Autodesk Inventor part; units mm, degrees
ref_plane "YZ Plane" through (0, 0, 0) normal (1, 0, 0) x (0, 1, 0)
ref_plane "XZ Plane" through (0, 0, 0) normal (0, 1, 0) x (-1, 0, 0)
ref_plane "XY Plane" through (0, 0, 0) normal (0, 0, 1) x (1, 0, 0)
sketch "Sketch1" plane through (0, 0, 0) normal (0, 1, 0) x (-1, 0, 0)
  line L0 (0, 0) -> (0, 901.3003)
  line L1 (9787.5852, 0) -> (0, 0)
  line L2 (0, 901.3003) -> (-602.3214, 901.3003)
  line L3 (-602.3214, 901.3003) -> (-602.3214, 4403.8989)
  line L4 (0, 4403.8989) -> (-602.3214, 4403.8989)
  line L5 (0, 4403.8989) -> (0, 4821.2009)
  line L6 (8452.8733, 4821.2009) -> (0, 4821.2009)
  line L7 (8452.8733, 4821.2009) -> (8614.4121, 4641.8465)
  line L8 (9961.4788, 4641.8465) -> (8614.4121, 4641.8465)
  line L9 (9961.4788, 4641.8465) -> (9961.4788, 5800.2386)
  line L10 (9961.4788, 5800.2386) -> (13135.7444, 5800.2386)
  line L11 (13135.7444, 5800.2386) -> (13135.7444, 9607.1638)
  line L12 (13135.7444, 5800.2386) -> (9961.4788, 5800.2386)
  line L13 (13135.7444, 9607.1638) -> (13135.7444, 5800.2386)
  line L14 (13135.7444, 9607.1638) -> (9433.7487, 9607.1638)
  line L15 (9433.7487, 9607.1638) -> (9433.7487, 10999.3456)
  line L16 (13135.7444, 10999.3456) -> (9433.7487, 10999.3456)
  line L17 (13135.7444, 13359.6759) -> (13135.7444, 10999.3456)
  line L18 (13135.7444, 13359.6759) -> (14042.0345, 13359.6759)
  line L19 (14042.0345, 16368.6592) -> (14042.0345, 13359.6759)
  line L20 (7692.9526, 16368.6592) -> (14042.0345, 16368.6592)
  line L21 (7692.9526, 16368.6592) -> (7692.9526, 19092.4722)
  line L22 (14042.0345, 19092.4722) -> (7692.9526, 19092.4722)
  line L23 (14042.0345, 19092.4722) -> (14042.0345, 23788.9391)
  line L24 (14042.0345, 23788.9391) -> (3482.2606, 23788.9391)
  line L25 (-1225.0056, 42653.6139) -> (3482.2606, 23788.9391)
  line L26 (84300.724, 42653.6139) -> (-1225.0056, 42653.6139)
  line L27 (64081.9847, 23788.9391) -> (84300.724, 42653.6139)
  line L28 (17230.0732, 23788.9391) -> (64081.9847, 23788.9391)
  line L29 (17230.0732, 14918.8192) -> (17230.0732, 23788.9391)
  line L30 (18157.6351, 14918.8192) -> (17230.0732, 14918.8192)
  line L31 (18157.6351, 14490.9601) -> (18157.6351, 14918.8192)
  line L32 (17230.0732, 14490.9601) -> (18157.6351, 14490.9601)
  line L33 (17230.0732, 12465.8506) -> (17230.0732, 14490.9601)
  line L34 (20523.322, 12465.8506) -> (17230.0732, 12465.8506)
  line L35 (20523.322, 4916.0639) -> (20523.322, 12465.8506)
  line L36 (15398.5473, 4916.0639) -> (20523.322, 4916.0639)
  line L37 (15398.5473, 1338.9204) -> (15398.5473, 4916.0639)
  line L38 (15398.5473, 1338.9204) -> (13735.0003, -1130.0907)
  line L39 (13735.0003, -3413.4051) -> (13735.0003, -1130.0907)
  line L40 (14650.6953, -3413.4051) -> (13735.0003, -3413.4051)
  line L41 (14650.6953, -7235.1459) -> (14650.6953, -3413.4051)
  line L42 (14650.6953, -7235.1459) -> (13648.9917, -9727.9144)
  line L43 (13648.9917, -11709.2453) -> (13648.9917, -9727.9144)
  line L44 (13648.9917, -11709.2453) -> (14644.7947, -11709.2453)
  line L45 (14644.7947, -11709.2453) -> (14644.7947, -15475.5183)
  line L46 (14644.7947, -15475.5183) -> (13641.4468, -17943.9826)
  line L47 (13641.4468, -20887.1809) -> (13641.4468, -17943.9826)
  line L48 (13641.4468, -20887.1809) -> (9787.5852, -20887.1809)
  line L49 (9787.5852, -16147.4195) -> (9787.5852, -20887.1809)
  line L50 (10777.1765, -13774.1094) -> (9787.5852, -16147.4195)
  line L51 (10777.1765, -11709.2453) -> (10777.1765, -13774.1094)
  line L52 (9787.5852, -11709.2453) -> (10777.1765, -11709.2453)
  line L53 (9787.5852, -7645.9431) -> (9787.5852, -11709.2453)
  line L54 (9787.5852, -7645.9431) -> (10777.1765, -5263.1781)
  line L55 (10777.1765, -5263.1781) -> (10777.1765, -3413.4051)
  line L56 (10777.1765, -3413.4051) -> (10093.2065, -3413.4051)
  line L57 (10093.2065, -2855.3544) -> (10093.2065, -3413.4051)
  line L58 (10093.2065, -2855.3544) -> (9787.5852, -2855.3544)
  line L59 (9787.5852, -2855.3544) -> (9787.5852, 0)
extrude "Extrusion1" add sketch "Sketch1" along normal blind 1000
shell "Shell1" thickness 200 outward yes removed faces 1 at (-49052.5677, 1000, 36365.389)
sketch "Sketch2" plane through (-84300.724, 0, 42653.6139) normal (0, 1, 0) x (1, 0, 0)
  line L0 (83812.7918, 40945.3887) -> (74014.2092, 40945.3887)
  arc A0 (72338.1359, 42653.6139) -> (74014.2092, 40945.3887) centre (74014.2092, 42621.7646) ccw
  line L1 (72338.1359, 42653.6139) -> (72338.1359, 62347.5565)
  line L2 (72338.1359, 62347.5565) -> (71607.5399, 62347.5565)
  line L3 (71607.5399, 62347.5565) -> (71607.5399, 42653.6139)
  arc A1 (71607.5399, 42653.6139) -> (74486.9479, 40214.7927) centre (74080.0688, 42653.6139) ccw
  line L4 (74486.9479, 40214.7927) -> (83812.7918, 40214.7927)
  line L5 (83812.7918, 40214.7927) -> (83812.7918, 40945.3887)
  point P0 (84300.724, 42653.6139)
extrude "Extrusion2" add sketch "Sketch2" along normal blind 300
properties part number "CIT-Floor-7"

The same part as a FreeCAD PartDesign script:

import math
import FreeCAD as App
import Part
import Sketcher

V = App.Vector
Q = App.Units.Quantity


def faces_at(feature, points):
    """Names of the faces that lie closest to the given points."""
    faces = feature.Shape.Faces
    near = lambda p: min(range(len(faces)), key=lambda i: faces[i].distToShape(Part.Vertex(*p))[0])
    return sorted({f"Face{near(p) + 1}" for p in points})


def add_polygon(sketch, points):
    """Adds a closed chain of lines whose ends are joined by coincident constraints."""
    first, n = sketch.GeometryCount, len(points)
    for a, b in zip(points, points[1:] + points[:1]):
        sketch.addGeometry(Part.LineSegment(App.Vector(*a, 0), App.Vector(*b, 0)), False)
    for i in range(n):
        sketch.addConstraint(Sketcher.Constraint("Coincident", first + i, 2, first + (i + 1) % n, 1))

doc = App.newDocument("Part")
body = doc.addObject("PartDesign::Body", "Body")

sketch1 = body.newObject("Sketcher::SketchObject", "Sketch")
sketch1.AttachmentSupport = (doc.getObject("XZ_Plane"), [""])
sketch1.MapMode = "FlatFace"
add_polygon(sketch1, [(0, 901.3003), (0, 0), (-9787.5852, 0), (-9787.5852, -2855.3544), (-10093.2065, -2855.3544), (-10093.2065, -3413.4051), (-10777.1765, -3413.4051), (-10777.1765, -5263.1781), (-9787.5852, -7645.9431), (-9787.5852, -11709.2453), (-10777.1765, -11709.2453), (-10777.1765, -13774.1094), (-9787.5852, -16147.4195), (-9787.5852, -20887.1809), (-13641.4468, -20887.1809), (-13641.4468, -17943.9826), (-14644.7947, -15475.5183), (-14644.7947, -11709.2453), (-13648.9917, -11709.2453), (-13648.9917, -9727.9144), (-14650.6953, -7235.1459), (-14650.6953, -3413.4051), (-13735.0003, -3413.4051), (-13735.0003, -1130.0907), (-15398.5473, 1338.9204), (-15398.5473, 4916.0639), (-20523.322, 4916.0639), (-20523.322, 12465.8506), (-17230.0732, 12465.8506), (-17230.0732, 14490.9601), (-18157.6351, 14490.9601), (-18157.6351, 14918.8192), (-17230.0732, 14918.8192), (-17230.0732, 23788.9391), (-64081.9847, 23788.9391), (-84300.724, 42653.6139), (1225.0056, 42653.6139), (-3482.2606, 23788.9391), (-14042.0345, 23788.9391), (-14042.0345, 19092.4722), (-7692.9526, 19092.4722), (-7692.9526, 16368.6592), (-14042.0345, 16368.6592), (-14042.0345, 13359.6759), (-13135.7444, 13359.6759), (-13135.7444, 10999.3456), (-9433.7487, 10999.3456), (-9433.7487, 9607.1638), (-13135.7444, 9607.1638), (-13135.7444, 5800.2386), (-9961.4788, 5800.2386), (-9961.4788, 4641.8465), (-8614.4121, 4641.8465), (-8452.8733, 4821.2009), (0, 4821.2009), (0, 4403.8989), (602.3214, 4403.8989), (602.3214, 901.3003)])
sketch1.addConstraint(Sketcher.Constraint("Vertical", 0))
sketch1.addConstraint(Sketcher.Constraint("Horizontal", 1))
sketch1.addConstraint(Sketcher.Constraint("Vertical", 2))
sketch1.addConstraint(Sketcher.Constraint("Horizontal", 3))
sketch1.addConstraint(Sketcher.Constraint("Vertical", 4))
sketch1.addConstraint(Sketcher.Constraint("Horizontal", 5))
sketch1.addConstraint(Sketcher.Constraint("Vertical", 6))
sketch1.addConstraint(Sketcher.Constraint("Vertical", 8))
sketch1.addConstraint(Sketcher.Constraint("Horizontal", 9))
sketch1.addConstraint(Sketcher.Constraint("Vertical", 10))
sketch1.addConstraint(Sketcher.Constraint("Vertical", 12))
sketch1.addConstraint(Sketcher.Constraint("Horizontal", 13))
sketch1.addConstraint(Sketcher.Constraint("Vertical", 14))
sketch1.addConstraint(Sketcher.Constraint("Vertical", 16))
sketch1.addConstraint(Sketcher.Constraint("Horizontal", 17))
sketch1.addConstraint(Sketcher.Constraint("Vertical", 18))
sketch1.addConstraint(Sketcher.Constraint("Vertical", 20))
sketch1.addConstraint(Sketcher.Constraint("Horizontal", 21))
sketch1.addConstraint(Sketcher.Constraint("Vertical", 22))
sketch1.addConstraint(Sketcher.Constraint("Vertical", 24))
sketch1.addConstraint(Sketcher.Constraint("Horizontal", 25))
sketch1.addConstraint(Sketcher.Constraint("Vertical", 26))
sketch1.addConstraint(Sketcher.Constraint("Horizontal", 27))
sketch1.addConstraint(Sketcher.Constraint("Vertical", 28))
sketch1.addConstraint(Sketcher.Constraint("Horizontal", 29))
sketch1.addConstraint(Sketcher.Constraint("Vertical", 30))
sketch1.addConstraint(Sketcher.Constraint("Horizontal", 31))
sketch1.addConstraint(Sketcher.Constraint("Vertical", 32))
sketch1.addConstraint(Sketcher.Constraint("Horizontal", 33))
sketch1.addConstraint(Sketcher.Constraint("Horizontal", 35))
sketch1.addConstraint(Sketcher.Constraint("Horizontal", 37))
sketch1.addConstraint(Sketcher.Constraint("Vertical", 38))
sketch1.addConstraint(Sketcher.Constraint("Horizontal", 39))
sketch1.addConstraint(Sketcher.Constraint("Vertical", 40))
sketch1.addConstraint(Sketcher.Constraint("Horizontal", 41))
sketch1.addConstraint(Sketcher.Constraint("Vertical", 42))
sketch1.addConstraint(Sketcher.Constraint("Horizontal", 43))
sketch1.addConstraint(Sketcher.Constraint("Vertical", 44))
sketch1.addConstraint(Sketcher.Constraint("Horizontal", 45))
sketch1.addConstraint(Sketcher.Constraint("Vertical", 46))
sketch1.addConstraint(Sketcher.Constraint("Horizontal", 47))
sketch1.addConstraint(Sketcher.Constraint("Vertical", 48))
sketch1.addConstraint(Sketcher.Constraint("Horizontal", 49))
sketch1.addConstraint(Sketcher.Constraint("Vertical", 50))
sketch1.addConstraint(Sketcher.Constraint("Horizontal", 51))
sketch1.addConstraint(Sketcher.Constraint("Horizontal", 53))
sketch1.addConstraint(Sketcher.Constraint("Vertical", 54))
sketch1.addConstraint(Sketcher.Constraint("Horizontal", 55))
sketch1.addConstraint(Sketcher.Constraint("Vertical", 56))
sketch1.addConstraint(Sketcher.Constraint("Horizontal", 57))
sketch1.addConstraint(Sketcher.Constraint("Coincident", 0, 2, -1, 1))
sketch1.addConstraint(Sketcher.Constraint("PointOnObject", 53, 2, -2))
sketch1.addConstraint(Sketcher.Constraint("DistanceX", 5, 2, 5, 1, Q("683.97 mm")))
sketch1.addConstraint(Sketcher.Constraint("DistanceX", 43, 1, 43, 2, Q("906.29 mm")))
sketch1.addConstraint(Sketcher.Constraint("DistanceY", 32, 1, 32, 2, Q("8870.12 mm")))
sketch1.addConstraint(Sketcher.Constraint("Distance", 11, Q("2571.36 mm")))
sketch1.addConstraint(Sketcher.Constraint("DistanceX", 17, 1, 17, 2, Q("995.803 mm")))
sketch1.addConstraint(Sketcher.Constraint("DistanceX", 21, 1, 21, 2, Q("915.695 mm")))
sketch1.addConstraint(Sketcher.Constraint("DistanceX", 29, 2, 29, 1, Q("927.562 mm")))
sketch1.addConstraint(Sketcher.Constraint("DistanceX", 31, 1, 31, 2, Q("927.562 mm")))
sketch1.addConstraint(Sketcher.Constraint("DistanceX", 37, 2, 37, 1, Q("10559.774 mm")))
sketch1.addConstraint(Sketcher.Constraint("DistanceX", 39, 1, 39, 2, Q("6349.082 mm")))
sketch1.addConstraint(Sketcher.Constraint("DistanceX", 41, 2, 41, 1, Q("6349.082 mm")))
sketch1.addConstraint(Sketcher.Constraint("DistanceY", 6, 2, 6, 1, Q("1849.773 mm")))
sketch1.addConstraint(Sketcher.Constraint("DistanceY", 10, 2, 10, 1, Q("2064.864 mm")))
sketch1.addConstraint(Sketcher.Constraint("DistanceY", 16, 1, 16, 2, Q("3766.273 mm")))
sketch1.addConstraint(Sketcher.Constraint("DistanceY", 18, 1, 18, 2, Q("1981.331 mm")))
sketch1.addConstraint(Sketcher.Constraint("DistanceY", 30, 1, 30, 2, Q("427.859 mm")))
sketch1.addConstraint(Sketcher.Constraint("DistanceY", 38, 2, 38, 1, Q("4696.467 mm")))
sketch1.addConstraint(Sketcher.Constraint("DistanceY", 40, 2, 40, 1, Q("2723.813 mm")))
sketch1.addConstraint(Sketcher.Constraint("DistanceY", 50, 2, 50, 1, Q("1158.392 mm")))
sketch1.addConstraint(Sketcher.Constraint("DistanceY", 54, 2, 54, 1, Q("417.302 mm")))
sketch1.addConstraint(Sketcher.Constraint("DistanceY", -1, 1, 28, 2, Q("14490.96 mm")))
sketch1.addConstraint(Sketcher.Constraint("DistanceX", 9, 2, 4, 2, Q("683.97 mm")))
sketch1.addConstraint(Sketcher.Constraint("DistanceY", 11, 2, 10, 2, Q("2373.31 mm")))
sketch1.addConstraint(Sketcher.Constraint("DistanceX", 19, 2, 7, 2, Q("4863.11 mm")))
sketch1.addConstraint(Sketcher.Constraint("DistanceY", 31, 2, 36, 2, Q("8870.12 mm")))
sketch1.addConstraint(Sketcher.Constraint("DistanceX", 42, 2, 47, 2, Q("906.29 mm")))
sketch1.addConstraint(Sketcher.Constraint("DistanceX", 49, 2, 46, 2, Q("527.73 mm")))
sketch1.addConstraint(Sketcher.Constraint("Distance", 23, Q("2977.147 mm")))
sketch1.addConstraint(Sketcher.Constraint("DistanceX", 1, 2, 1, 1, Q("9787.5852 mm")))
sketch1.addConstraint(Sketcher.Constraint("DistanceX", 3, 2, 3, 1, Q("305.6213 mm")))
sketch1.addConstraint(Sketcher.Constraint("DistanceX", 9, 2, 9, 1, Q("989.5913 mm")))
sketch1.addConstraint(Sketcher.Constraint("DistanceX", 13, 2, 13, 1, Q("3853.8616 mm")))
sketch1.addConstraint(Sketcher.Constraint("DistanceX", 25, 2, 25, 1, Q("5124.7747 mm")))
sketch1.addConstraint(Sketcher.Constraint("DistanceX", 27, 1, 27, 2, Q("3293.2488 mm")))
sketch1.addConstraint(Sketcher.Constraint("DistanceX", 33, 2, 33, 1, Q("46851.9115 mm")))
sketch1.addConstraint(Sketcher.Constraint("DistanceX", 35, 1, 35, 2, Q("85525.7296 mm")))
sketch1.addConstraint(Sketcher.Constraint("DistanceX", 45, 1, 45, 2, Q("3701.9957 mm")))
sketch1.addConstraint(Sketcher.Constraint("DistanceX", 51, 1, 51, 2, Q("1347.0667 mm")))
sketch1.addConstraint(Sketcher.Constraint("DistanceX", 53, 1, 53, 2, Q("8452.8733 mm")))
sketch1.addConstraint(Sketcher.Constraint("DistanceX", 55, 1, 55, 2, Q("602.3214 mm")))
sketch1.addConstraint(Sketcher.Constraint("DistanceY", 0, 2, 0, 1, Q("901.3003 mm")))
sketch1.addConstraint(Sketcher.Constraint("DistanceY", 2, 2, 2, 1, Q("2855.3544 mm")))
sketch1.addConstraint(Sketcher.Constraint("DistanceY", 4, 2, 4, 1, Q("558.0507 mm")))
sketch1.addConstraint(Sketcher.Constraint("DistanceY", 8, 2, 8, 1, Q("4063.3022 mm")))
sketch1.addConstraint(Sketcher.Constraint("DistanceY", 12, 2, 12, 1, Q("4739.7614 mm")))
sketch1.addConstraint(Sketcher.Constraint("DistanceY", 14, 1, 14, 2, Q("2943.1983 mm")))
sketch1.addConstraint(Sketcher.Constraint("DistanceY", 20, 1, 20, 2, Q("3821.7408 mm")))
sketch1.addConstraint(Sketcher.Constraint("DistanceY", 22, 1, 22, 2, Q("2283.3144 mm")))
sketch1.addConstraint(Sketcher.Constraint("DistanceY", 24, 1, 24, 2, Q("3577.1435 mm")))
sketch1.addConstraint(Sketcher.Constraint("DistanceY", 26, 1, 26, 2, Q("7549.7867 mm")))
sketch1.addConstraint(Sketcher.Constraint("DistanceY", 28, 1, 28, 2, Q("2025.1095 mm")))
sketch1.addConstraint(Sketcher.Constraint("DistanceY", 42, 2, 42, 1, Q("3008.9833 mm")))
sketch1.addConstraint(Sketcher.Constraint("DistanceY", 44, 2, 44, 1, Q("2360.3303 mm")))
sketch1.addConstraint(Sketcher.Constraint("DistanceY", 46, 2, 46, 1, Q("1392.1818 mm")))
sketch1.addConstraint(Sketcher.Constraint("DistanceY", 48, 2, 48, 1, Q("3806.9252 mm")))
sketch1.addConstraint(Sketcher.Constraint("DistanceY", 56, 2, 56, 1, Q("3502.5986 mm")))
sketch1.addConstraint(Sketcher.Constraint("DistanceY", 7, 2, -1, 1, Q("7645.943 mm")))
sketch1.addConstraint(Sketcher.Constraint("DistanceY", 19, 2, -1, 1, Q("7235.146 mm")))
sketch1.addConstraint(Sketcher.Constraint("DistanceX", 34, 2, -1, 1, Q("84300.724 mm")))
sketch1.addConstraint(Sketcher.Constraint("DistanceY", -1, 1, 34, 2, Q("42653.614 mm")))
sketch1.addConstraint(Sketcher.Constraint("DistanceX", 51, 2, -1, 1, Q("8614.412 mm")))
sketch1.addConstraint(Sketcher.Constraint("DistanceX", 15, 2, 14, 2, Q("1003.348 mm")))
sketch1.addConstraint(Sketcher.Constraint("DistanceY", 15, 2, 10, 2, Q("1701.409 mm")))
pad1 = body.newObject("PartDesign::Pad", "Pad")
pad1.Profile = sketch1
pad1.Length = 1000
pad1.Reversed = True
doc.recompute()

thickness = body.newObject("PartDesign::Thickness", "Thickness")
thickness.Base = (pad1, faces_at(pad1, [(-49052.568, 1000, 36365.389)]))
thickness.Value = 200
thickness.Reversed = False
thickness.Join = "Intersection"

sketch2 = body.newObject("Sketcher::SketchObject", "Sketch001")
sketch2.AttachmentSupport = (doc.getObject("XZ_Plane"), [""])
sketch2.MapMode = "FlatFace"
sketch2.addGeometry(Part.LineSegment(V(-488, 2439, 0), V(-488, 1708, 0)), False)
sketch2.addGeometry(Part.LineSegment(V(-488, 1708, 0), V(-10287, 1708, 0)), False)
sketch2.addGeometry(Part.ArcOfCircle(Part.Circle(V(-10287, 32, 0), V(0, 0, 1), 1676), math.radians(90), math.radians(181)), False)
sketch2.addGeometry(Part.LineSegment(V(-11963, 0, 0), V(-11963, -19694, 0)), False)
sketch2.addGeometry(Part.LineSegment(V(-11963, -19694, 0), V(-12693, -19694, 0)), False)
sketch2.addGeometry(Part.LineSegment(V(-12693, -19694, 0), V(-12693, 0, 0)), False)
sketch2.addGeometry(Part.ArcOfCircle(Part.Circle(V(-10221, 0, 0), V(0, 0, 1), 2473), math.radians(81), math.radians(180)), False)
sketch2.addGeometry(Part.LineSegment(V(-9814, 2439, 0), V(-488, 2439, 0)), False)
sketch2.addConstraint(Sketcher.Constraint("Coincident", 0, 2, 1, 1))
sketch2.addConstraint(Sketcher.Constraint("Coincident", 1, 2, 2, 1))
sketch2.addConstraint(Sketcher.Constraint("Coincident", 2, 2, 3, 1))
sketch2.addConstraint(Sketcher.Constraint("Coincident", 3, 2, 4, 1))
sketch2.addConstraint(Sketcher.Constraint("Coincident", 4, 2, 5, 1))
sketch2.addConstraint(Sketcher.Constraint("Coincident", 5, 2, 6, 2))
sketch2.addConstraint(Sketcher.Constraint("Coincident", 6, 1, 7, 1))
sketch2.addConstraint(Sketcher.Constraint("Coincident", 7, 2, 0, 1))
sketch2.addConstraint(Sketcher.Constraint("Vertical", 0))
sketch2.addConstraint(Sketcher.Constraint("Horizontal", 1))
sketch2.addConstraint(Sketcher.Constraint("Vertical", 3))
sketch2.addConstraint(Sketcher.Constraint("Horizontal", 4))
sketch2.addConstraint(Sketcher.Constraint("Vertical", 5))
sketch2.addConstraint(Sketcher.Constraint("Horizontal", 7))
sketch2.addConstraint(Sketcher.Constraint("PointOnObject", 6, 3, -1))
sketch2.addConstraint(Sketcher.Constraint("PointOnObject", 5, 2, -1))
sketch2.addConstraint(Sketcher.Constraint("Vertical", 2, 3, 1, 2))
sketch2.addConstraint(Sketcher.Constraint("Equal", 4, 0))
sketch2.addConstraint(Sketcher.Constraint("Equal", 3, 5))
sketch2.addConstraint(Sketcher.Constraint("Radius", 6, Q("2472.529 mm")))
sketch2.addConstraint(Sketcher.Constraint("Radius", 2, Q("1676.3759 mm")))
sketch2.addConstraint(Sketcher.Constraint("DistanceX", 4, 2, 4, 1, Q("730.596 mm")))
sketch2.addConstraint(Sketcher.Constraint("DistanceX", 7, 1, 7, 2, Q("9325.844 mm")))
sketch2.addConstraint(Sketcher.Constraint("DistanceX", 1, 2, 1, 1, Q("9798.5826 mm")))
sketch2.addConstraint(Sketcher.Constraint("DistanceY", 3, 2, 3, 1, Q("19693.9426 mm")))
sketch2.addConstraint(Sketcher.Constraint("DistanceX", 2, 2, -1, 1, Q("11962.588 mm")))
pad2 = body.newObject("PartDesign::Pad", "Pad001")
pad2.Profile = sketch2
pad2.Length = 300
pad2.Reversed = True

doc.recompute()
